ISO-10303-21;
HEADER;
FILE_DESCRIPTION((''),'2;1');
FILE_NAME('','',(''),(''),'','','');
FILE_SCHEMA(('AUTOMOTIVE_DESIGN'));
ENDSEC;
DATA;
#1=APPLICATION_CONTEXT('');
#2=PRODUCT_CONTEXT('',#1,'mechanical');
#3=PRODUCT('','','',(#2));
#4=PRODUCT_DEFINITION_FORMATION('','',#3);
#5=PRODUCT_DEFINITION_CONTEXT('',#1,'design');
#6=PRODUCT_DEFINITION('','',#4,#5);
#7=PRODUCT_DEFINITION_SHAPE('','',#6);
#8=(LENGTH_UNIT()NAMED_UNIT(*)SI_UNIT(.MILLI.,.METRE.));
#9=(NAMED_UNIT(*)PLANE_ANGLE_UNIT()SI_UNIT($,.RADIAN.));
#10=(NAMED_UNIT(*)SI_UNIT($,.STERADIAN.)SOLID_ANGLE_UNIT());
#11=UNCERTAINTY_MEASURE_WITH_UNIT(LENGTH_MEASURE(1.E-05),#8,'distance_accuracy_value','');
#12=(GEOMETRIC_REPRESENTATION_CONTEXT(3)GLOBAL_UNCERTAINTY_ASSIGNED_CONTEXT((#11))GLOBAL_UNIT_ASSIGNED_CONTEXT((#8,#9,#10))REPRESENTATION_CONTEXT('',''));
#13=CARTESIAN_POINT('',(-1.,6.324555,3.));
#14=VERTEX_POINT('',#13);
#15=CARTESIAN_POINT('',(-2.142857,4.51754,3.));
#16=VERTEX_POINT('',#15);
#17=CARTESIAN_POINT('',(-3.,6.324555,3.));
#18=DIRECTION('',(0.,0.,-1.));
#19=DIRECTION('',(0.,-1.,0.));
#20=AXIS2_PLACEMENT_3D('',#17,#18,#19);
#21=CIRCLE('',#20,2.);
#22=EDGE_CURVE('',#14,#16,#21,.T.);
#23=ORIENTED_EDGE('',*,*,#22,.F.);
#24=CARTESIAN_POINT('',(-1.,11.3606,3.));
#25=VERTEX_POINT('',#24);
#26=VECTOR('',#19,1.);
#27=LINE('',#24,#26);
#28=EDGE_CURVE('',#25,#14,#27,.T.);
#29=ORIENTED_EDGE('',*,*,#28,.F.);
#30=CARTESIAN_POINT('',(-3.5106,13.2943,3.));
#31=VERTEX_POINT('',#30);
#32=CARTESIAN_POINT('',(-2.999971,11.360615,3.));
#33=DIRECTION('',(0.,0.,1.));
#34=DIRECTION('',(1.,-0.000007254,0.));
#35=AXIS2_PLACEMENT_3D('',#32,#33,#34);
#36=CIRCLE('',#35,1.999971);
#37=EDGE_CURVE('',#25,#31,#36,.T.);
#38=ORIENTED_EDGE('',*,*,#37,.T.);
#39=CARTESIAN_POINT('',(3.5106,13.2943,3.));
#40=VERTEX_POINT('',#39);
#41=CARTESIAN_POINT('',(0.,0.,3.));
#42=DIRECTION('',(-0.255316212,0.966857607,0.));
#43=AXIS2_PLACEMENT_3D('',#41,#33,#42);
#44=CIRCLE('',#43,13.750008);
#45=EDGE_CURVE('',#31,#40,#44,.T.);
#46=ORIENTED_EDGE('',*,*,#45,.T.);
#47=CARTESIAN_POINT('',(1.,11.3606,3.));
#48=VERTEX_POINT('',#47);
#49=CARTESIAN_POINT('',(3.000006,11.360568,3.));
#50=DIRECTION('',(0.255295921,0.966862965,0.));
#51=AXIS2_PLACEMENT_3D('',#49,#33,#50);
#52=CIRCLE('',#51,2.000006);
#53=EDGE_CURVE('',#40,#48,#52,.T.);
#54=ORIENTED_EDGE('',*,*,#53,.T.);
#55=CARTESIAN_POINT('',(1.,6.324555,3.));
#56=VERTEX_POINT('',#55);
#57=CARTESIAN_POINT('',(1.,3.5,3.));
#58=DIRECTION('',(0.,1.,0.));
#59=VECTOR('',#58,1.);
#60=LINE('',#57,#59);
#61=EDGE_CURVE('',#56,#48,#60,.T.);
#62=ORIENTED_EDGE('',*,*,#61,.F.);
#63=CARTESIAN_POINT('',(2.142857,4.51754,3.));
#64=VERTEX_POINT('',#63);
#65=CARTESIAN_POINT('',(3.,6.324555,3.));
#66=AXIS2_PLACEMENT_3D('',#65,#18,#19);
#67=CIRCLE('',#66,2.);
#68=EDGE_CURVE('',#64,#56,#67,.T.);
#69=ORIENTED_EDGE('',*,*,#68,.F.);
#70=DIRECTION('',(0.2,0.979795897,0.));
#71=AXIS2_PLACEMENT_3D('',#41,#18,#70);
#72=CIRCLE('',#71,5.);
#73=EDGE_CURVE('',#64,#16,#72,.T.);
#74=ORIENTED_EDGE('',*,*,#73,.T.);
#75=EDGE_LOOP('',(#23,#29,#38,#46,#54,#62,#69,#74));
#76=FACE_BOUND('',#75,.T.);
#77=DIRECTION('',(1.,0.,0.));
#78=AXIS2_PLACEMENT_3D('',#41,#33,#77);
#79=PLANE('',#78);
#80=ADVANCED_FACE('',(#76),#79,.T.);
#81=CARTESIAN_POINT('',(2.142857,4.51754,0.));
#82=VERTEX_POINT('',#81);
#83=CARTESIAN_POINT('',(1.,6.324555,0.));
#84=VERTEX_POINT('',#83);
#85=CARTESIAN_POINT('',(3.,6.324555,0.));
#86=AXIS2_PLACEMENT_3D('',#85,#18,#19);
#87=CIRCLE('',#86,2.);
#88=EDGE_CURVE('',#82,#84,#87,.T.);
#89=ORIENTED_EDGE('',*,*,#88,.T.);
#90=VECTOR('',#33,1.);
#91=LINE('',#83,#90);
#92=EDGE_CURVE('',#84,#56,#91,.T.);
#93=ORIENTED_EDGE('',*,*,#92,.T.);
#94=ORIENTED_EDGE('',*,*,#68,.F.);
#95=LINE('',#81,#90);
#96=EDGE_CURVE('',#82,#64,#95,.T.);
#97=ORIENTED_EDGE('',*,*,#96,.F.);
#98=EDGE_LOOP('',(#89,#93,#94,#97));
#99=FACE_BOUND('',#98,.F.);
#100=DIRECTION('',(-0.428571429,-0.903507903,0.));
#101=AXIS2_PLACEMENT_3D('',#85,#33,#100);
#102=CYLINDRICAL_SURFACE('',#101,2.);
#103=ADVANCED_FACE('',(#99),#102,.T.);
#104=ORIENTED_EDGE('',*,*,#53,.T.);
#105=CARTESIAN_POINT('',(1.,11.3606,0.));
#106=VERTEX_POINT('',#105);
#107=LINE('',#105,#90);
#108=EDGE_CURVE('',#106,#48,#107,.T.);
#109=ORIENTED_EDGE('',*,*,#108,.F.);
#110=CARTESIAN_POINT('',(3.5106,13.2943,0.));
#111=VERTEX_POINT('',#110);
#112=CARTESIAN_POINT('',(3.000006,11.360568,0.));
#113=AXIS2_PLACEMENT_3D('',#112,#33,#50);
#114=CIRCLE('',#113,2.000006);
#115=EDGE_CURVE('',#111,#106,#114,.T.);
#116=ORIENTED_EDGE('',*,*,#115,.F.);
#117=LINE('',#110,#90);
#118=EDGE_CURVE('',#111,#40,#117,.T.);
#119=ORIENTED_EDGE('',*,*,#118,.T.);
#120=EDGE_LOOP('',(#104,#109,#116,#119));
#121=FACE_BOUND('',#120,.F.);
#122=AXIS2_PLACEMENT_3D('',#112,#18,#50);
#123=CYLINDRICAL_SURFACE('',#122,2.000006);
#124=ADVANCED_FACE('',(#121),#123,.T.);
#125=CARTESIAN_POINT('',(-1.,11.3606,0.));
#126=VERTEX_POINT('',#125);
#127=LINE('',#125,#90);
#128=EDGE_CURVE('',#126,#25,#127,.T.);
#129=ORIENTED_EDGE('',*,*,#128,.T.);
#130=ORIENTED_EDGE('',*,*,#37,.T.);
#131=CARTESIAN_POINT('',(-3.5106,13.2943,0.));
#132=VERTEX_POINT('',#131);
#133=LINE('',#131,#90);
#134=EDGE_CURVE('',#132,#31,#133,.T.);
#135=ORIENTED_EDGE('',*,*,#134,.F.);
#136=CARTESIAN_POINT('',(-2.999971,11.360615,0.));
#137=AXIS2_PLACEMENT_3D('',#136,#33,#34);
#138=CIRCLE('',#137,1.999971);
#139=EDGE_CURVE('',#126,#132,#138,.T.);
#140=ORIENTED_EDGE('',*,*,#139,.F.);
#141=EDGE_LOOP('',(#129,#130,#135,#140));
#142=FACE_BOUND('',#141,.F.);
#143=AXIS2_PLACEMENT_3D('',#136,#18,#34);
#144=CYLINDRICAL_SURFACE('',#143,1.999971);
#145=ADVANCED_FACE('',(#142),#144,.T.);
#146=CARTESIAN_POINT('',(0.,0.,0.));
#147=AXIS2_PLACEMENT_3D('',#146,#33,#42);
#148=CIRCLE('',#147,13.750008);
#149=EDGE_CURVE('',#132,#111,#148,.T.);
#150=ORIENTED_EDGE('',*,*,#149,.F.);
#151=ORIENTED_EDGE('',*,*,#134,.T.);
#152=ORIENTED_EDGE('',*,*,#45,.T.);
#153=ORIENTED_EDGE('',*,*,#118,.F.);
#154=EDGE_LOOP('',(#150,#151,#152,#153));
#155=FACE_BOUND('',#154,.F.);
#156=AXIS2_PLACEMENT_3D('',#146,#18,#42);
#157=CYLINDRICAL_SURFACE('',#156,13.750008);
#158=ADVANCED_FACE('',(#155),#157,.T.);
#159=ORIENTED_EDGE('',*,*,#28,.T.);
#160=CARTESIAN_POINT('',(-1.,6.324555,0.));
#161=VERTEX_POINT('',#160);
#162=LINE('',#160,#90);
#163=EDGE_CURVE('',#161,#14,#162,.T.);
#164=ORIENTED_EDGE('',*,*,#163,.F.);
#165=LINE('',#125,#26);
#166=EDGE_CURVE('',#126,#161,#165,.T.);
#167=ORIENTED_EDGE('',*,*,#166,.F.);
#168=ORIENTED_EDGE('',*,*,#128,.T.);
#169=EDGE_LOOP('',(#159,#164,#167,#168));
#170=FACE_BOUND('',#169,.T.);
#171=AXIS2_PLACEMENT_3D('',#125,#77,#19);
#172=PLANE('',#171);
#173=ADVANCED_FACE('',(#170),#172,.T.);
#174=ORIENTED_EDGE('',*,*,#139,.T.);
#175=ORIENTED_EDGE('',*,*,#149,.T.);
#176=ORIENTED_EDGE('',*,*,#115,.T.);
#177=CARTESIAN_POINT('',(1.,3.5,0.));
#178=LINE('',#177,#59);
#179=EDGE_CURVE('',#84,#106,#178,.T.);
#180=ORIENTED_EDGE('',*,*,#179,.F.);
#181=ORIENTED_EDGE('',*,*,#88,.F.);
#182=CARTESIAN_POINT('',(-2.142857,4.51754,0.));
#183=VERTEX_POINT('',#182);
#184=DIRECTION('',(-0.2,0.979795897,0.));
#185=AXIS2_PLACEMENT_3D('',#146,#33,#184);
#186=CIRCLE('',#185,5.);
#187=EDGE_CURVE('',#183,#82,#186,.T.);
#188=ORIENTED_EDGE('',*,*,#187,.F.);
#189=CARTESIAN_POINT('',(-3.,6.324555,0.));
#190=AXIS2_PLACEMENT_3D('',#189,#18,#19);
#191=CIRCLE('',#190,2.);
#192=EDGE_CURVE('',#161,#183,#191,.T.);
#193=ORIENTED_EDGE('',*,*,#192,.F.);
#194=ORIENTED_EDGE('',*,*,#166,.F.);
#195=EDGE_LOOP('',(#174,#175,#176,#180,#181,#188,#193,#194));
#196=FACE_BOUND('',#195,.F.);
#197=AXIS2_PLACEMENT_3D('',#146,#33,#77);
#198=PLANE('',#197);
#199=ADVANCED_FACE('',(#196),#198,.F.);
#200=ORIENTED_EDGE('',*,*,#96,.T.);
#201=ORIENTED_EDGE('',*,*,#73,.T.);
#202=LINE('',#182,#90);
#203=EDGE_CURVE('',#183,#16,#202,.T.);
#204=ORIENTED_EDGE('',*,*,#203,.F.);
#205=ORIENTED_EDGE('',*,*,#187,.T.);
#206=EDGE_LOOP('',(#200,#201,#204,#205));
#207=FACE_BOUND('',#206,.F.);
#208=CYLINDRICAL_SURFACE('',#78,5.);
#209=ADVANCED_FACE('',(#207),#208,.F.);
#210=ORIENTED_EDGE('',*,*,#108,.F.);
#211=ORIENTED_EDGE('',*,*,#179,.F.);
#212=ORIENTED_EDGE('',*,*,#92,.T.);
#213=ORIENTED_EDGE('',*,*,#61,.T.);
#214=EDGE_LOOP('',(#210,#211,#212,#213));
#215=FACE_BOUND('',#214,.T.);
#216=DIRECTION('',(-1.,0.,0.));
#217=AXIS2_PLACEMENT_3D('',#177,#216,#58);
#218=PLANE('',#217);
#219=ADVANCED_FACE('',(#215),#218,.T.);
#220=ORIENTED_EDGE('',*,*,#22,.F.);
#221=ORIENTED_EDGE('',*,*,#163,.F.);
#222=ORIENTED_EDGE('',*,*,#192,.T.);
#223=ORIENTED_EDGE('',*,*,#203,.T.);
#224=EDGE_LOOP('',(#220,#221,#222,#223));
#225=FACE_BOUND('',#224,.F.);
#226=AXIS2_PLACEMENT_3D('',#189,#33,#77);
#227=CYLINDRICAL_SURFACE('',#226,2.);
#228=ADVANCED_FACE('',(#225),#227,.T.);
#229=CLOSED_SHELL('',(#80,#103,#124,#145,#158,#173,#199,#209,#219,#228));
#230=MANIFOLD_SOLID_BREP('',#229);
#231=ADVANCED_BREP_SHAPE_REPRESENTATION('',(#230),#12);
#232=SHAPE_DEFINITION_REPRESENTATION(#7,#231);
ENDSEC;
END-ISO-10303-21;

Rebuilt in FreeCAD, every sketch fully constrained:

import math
import FreeCAD as App
import Part
import Sketcher

V = App.Vector
Q = App.Units.Quantity


def edges_at(feature, points):
    """Names of the edges that pass closest to the given points."""
    edges = feature.Shape.Edges
    near = lambda p: min(range(len(edges)), key=lambda i: edges[i].distToShape(Part.Vertex(*p))[0])
    return sorted({f"Edge{near(p) + 1}" for p in points})

doc = App.newDocument("Part")
params = doc.addObject("Spreadsheet::Sheet", "Params")
for row, (alias, value) in enumerate([
    ("sketch1_radius", "2 mm"),
    ("sketch1_radius2", "1 mm"),
    ("sketch1_radius3", "13.75 mm"),
    ("pad1_length", "3 mm"),
    ("sketch2_diameter", "10 mm"),
    ("fillet_radius", "2 mm"),
], start=1):
    params.set(f"A{row}", alias)
    params.set(f"B{row}", "=" + value)
    params.setAlias(f"B{row}", alias)

body = doc.addObject("PartDesign::Body", "Body")

# Sketch on XY plane
sketch1 = body.newObject("Sketcher::SketchObject", "Sketch")
sketch1.AttachmentSupport = (doc.getObject("XY_Plane"), [""])
sketch1.MapMode = "FlatFace"
sketch1.addGeometry(Part.ArcOfCircle(Part.Circle(V(-3, 11.3606, 0), V(0, 0, 1), 2), math.radians(0), math.radians(104.791536)), False)
sketch1.addGeometry(Part.ArcOfCircle(Part.Circle(V(0, 0, 0), V(0, 0, 1), 13.750008), math.radians(104.792323), math.radians(435.207677)), False)
sketch1.addGeometry(Part.ArcOfCircle(Part.Circle(V(3, 11.3606, 0), V(0, 0, 1), 1.999977), math.radians(75.208464), math.radians(180)), False)
sketch1.addGeometry(Part.LineSegment(V(1, 11.3606, 0), V(1, 3.5, 0)), False)
sketch1.addGeometry(Part.ArcOfCircle(Part.Circle(V(0, 3.5, 0), V(0, 0, 1), 1), math.radians(180), math.radians(360)), False)
sketch1.addGeometry(Part.LineSegment(V(-1, 3.5, 0), V(-1, 11.3606, 0)), False)
sketch1.addConstraint(Sketcher.Constraint("Tangent", 0, 2, 1, 1))
sketch1.addConstraint(Sketcher.Constraint("Tangent", 1, 2, 2, 1))
sketch1.addConstraint(Sketcher.Constraint("Tangent", 2, 2, 3, 1))
sketch1.addConstraint(Sketcher.Constraint("Tangent", 3, 2, 4, 2))
sketch1.addConstraint(Sketcher.Constraint("Tangent", 4, 1, 5, 1))
sketch1.addConstraint(Sketcher.Constraint("Tangent", 5, 2, 0, 1))
sketch1.addConstraint(Sketcher.Constraint("Vertical", 3))
sketch1.addConstraint(Sketcher.Constraint("Vertical", 5))
sketch1.addConstraint(Sketcher.Constraint("Coincident", 1, 3, -1, 1))
sketch1.addConstraint(Sketcher.Constraint("Equal", 0, 2))
sketch1.addConstraint(Sketcher.Constraint("PointOnObject", 4, 3, -2))
sketch1.addConstraint(Sketcher.Constraint("Radius", 0, Q("2 mm")))
sketch1.addConstraint(Sketcher.Constraint("Radius", 4, Q("1 mm")))
sketch1.addConstraint(Sketcher.Constraint("Radius", 1, Q("13.75 mm")))
sketch1.addConstraint(Sketcher.Constraint("DistanceY", -1, 1, 4, 3, Q("3.5 mm")))
sketch1.setExpression("Constraints[11]", "Params.sketch1_radius")
sketch1.setExpression("Constraints[12]", "Params.sketch1_radius2")
sketch1.setExpression("Constraints[13]", "Params.sketch1_radius3")
pad1 = body.newObject("PartDesign::Pad", "Pad")
pad1.Profile = sketch1
pad1.setExpression("Length", "Params.pad1_length")

# Sketch on XY plane
sketch2 = body.newObject("Sketcher::SketchObject", "Sketch001")
sketch2.AttachmentSupport = (doc.getObject("XY_Plane"), [""])
sketch2.MapMode = "FlatFace"
sketch2.AttachmentOffset = App.Placement(V(0, 0, 3), App.Rotation())
sketch2.addGeometry(Part.Circle(V(0, 0, 0), V(0, 0, 1), 5), False)
sketch2.addConstraint(Sketcher.Constraint("Coincident", 0, 3, -1, 1))
sketch2.addConstraint(Sketcher.Constraint("Diameter", 0, Q("10 mm")))
sketch2.setExpression("Constraints[1]", "Params.sketch2_diameter")
pocket1 = body.newObject("PartDesign::Pocket", "Pocket")
pocket1.Profile = sketch2
pocket1.Type = "ThroughAll"
doc.recompute()

fillet = body.newObject("PartDesign::Fillet", "Fillet")
fillet.Base = (pocket1, edges_at(pocket1, [(-1, 4.899, 1.5), (1, 4.899, 1.5)]))
fillet.setExpression("Radius", "Params.fillet_radius")

doc.recompute()
